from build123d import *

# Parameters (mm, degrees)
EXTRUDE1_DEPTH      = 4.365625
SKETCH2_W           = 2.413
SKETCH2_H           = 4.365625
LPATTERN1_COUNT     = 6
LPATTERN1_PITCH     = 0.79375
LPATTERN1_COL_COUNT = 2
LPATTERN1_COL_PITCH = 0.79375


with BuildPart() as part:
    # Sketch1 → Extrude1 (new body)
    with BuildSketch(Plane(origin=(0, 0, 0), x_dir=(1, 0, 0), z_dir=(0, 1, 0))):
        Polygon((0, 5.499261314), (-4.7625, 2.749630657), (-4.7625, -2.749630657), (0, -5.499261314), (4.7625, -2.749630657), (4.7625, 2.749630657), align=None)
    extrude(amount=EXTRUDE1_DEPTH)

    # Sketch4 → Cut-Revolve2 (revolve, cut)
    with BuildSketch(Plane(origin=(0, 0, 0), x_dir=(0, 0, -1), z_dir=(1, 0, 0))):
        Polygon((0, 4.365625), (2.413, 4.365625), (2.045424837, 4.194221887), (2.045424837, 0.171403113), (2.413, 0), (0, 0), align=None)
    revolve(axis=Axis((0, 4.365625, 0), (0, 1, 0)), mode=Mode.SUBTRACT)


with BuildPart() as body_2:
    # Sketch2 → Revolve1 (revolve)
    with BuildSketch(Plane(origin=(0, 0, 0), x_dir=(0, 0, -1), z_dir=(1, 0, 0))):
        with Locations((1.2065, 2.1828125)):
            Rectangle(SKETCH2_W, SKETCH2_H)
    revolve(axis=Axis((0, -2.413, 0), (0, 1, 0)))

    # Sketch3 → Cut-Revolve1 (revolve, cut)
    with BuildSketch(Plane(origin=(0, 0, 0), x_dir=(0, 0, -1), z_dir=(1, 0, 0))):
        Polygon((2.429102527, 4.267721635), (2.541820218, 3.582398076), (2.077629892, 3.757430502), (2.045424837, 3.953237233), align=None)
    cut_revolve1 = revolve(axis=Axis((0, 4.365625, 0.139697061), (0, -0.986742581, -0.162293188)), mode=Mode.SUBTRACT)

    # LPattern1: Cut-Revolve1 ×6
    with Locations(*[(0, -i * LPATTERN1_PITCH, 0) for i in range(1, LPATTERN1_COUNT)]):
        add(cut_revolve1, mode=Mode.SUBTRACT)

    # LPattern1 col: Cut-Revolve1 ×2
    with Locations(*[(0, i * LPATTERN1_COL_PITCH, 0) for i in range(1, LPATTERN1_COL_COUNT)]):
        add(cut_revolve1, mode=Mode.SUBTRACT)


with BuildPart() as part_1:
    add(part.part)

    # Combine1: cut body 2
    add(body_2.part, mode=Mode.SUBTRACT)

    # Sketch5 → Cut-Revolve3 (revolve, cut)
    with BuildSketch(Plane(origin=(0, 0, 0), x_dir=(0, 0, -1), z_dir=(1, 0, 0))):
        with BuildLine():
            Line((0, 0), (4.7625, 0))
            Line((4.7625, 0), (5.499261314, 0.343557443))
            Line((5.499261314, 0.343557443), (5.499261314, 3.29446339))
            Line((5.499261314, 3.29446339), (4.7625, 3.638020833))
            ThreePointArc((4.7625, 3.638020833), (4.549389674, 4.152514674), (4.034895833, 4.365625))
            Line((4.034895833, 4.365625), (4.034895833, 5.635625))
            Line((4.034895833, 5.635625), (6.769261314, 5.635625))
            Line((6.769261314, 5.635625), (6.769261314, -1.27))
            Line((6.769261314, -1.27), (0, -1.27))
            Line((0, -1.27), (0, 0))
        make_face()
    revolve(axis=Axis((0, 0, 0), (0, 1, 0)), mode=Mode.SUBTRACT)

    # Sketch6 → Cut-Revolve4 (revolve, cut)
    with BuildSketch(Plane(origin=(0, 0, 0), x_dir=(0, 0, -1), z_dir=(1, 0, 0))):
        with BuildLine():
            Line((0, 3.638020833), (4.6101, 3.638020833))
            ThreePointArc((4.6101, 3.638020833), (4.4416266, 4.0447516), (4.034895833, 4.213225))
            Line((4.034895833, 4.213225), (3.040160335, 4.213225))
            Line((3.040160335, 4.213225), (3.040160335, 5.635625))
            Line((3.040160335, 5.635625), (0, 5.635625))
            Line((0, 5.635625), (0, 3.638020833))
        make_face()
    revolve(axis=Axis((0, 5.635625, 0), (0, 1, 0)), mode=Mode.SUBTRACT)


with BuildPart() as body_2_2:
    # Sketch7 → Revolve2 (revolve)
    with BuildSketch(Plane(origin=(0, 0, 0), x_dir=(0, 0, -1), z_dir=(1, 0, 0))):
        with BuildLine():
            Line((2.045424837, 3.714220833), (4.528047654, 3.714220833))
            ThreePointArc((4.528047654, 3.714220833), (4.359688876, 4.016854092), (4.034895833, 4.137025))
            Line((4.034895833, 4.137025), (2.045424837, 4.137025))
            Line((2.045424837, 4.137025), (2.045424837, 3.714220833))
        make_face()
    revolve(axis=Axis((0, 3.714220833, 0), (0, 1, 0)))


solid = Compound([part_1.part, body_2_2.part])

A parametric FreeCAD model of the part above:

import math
import FreeCAD as App
import Part
import Sketcher
from FreeCAD import Vector
Q = App.Units.Quantity


def add_polygon(sketch, points):
    """Adds a closed chain of lines whose ends are joined by coincident constraints."""
    first, n = sketch.GeometryCount, len(points)
    for a, b in zip(points, points[1:] + points[:1]):
        sketch.addGeometry(Part.LineSegment(App.Vector(*a, 0), App.Vector(*b, 0)), False)
    for i in range(n):
        sketch.addConstraint(Sketcher.Constraint("Coincident", first + i, 2, first + (i + 1) % n, 1))

doc = App.newDocument("Part")
params = doc.addObject("Spreadsheet::Sheet", "Params")
for row, (alias, value) in enumerate([
    ("pad1_length", "0.171875 in"),
    ("sketch2_width", "0.171875 in"),
    ("sketch2_height", "0.095 in"),
    ("groove_angle", "360 deg"),
    ("sketch3_width", "0.171875 in"),
    ("sketch3_height", "0.095 in"),
    ("revolution_angle", "360 deg"),
    ("groove2_angle", "360 deg"),
    ("linearpattern_pitch", "0.03125 in"),
    ("linearpattern2_pitch", "0.03125 in"),
    ("sketch5_width", "0.05 in"),
    ("sketch5_height", "0.1875 in"),
    ("groove3_angle", "360 deg"),
    ("sketch6_width", "0.056 in"),
    ("groove4_angle", "360 deg"),
    ("revolution2_angle", "360 deg"),
], start=1):
    params.set(f"A{row}", alias)
    params.set(f"B{row}", "=" + value)
    params.setAlias(f"B{row}", alias)

body = doc.addObject("PartDesign::Body", "Body")

sketch1 = body.newObject("Sketcher::SketchObject", "Sketch")
sketch1.AttachmentSupport = (doc.getObject("XZ_Plane"), [""])
sketch1.MapMode = "FlatFace"
add_polygon(sketch1, [(0, -5), (-5, -3), (-5, 3), (0, 5), (5, 3), (5, -3)])
sketch1.addConstraint([
    Sketcher.Constraint("Vertical", 1),
    Sketcher.Constraint("Vertical", 4),
    Sketcher.Constraint("Symmetric", 0, 2, 3, 2, -1, 1),
    Sketcher.Constraint("Symmetric", 2, 2, 5, 2, -1, 1),
    Sketcher.Constraint("PointOnObject", 2, 2, -2),
    Sketcher.Constraint("Parallel", 2, 5),
    Sketcher.Constraint("Horizontal", 1, 2, 3, 2),
    Sketcher.Constraint("Angle", 0, Q("150 deg")),
    Sketcher.Constraint("DistanceX", 0, 2, -1, 1, Q("0.1875 in")),
    Sketcher.Constraint("DistanceY", 1, 1, 1, 2, Q("5.499261 mm")),
])
pad1 = body.newObject("PartDesign::Pad", "Pad")
pad1.Profile = sketch1
pad1.setExpression("Length", "Params.pad1_length")
pad1.Reversed = True

sketch2 = body.newObject("Sketcher::SketchObject", "Sketch001")
sketch2.AttachmentSupport = (doc.getObject("YZ_Plane"), [""])
sketch2.MapMode = "FlatFace"
add_polygon(sketch2, [(4.37, -2.41), (4.37, 0), (0, 0), (0, -2.41), (0.17, -2.05), (4.19, -2.05)])
sketch2.addConstraint([
    Sketcher.Constraint("Vertical", 0),
    Sketcher.Constraint("Horizontal", 1),
    Sketcher.Constraint("Vertical", 2),
    Sketcher.Constraint("Horizontal", 4),
    Sketcher.Constraint("Coincident", 1, 2, -1, 1),
    Sketcher.Constraint("Horizontal", 2, 2, 5, 2),
    Sketcher.Constraint("Equal", 3, 5),
    Sketcher.Constraint("Angle", 3, Q("65 deg")),
    Sketcher.Constraint("DistanceX", 1, 2, 1, 1, Q("0.171875 in")),
    Sketcher.Constraint("DistanceY", 0, 1, 0, 2, Q("0.095 in")),
    Sketcher.Constraint("DistanceX", 4, 1, 4, 2, Q("4.022819 mm")),
])
sketch2.setExpression("Constraints[14]", "Params.sketch2_width")
sketch2.setExpression("Constraints[15]", "Params.sketch2_height")
groove = body.newObject("PartDesign::Groove", "Groove")
groove.Profile = sketch2
groove.ReferenceAxis = (sketch2, ["H_Axis"])
groove.setExpression("Angle", "Params.groove_angle")
body2 = doc.addObject("PartDesign::Body", "Body001")

sketch3 = body2.newObject("Sketcher::SketchObject", "Sketch002")
sketch3.AttachmentSupport = (doc.getObject("YZ_Plane001"), [""])
sketch3.MapMode = "FlatFace"
add_polygon(sketch3, [(4.4, 0), (0, 0), (0, -2.4), (4.4, -2.4)])
sketch3.addConstraint([
    Sketcher.Constraint("Horizontal", 0),
    Sketcher.Constraint("Vertical", 1),
    Sketcher.Constraint("Horizontal", 2),
    Sketcher.Constraint("Vertical", 3),
    Sketcher.Constraint("Coincident", 0, 2, -1, 1),
    Sketcher.Constraint("DistanceX", 0, 2, 0, 1, Q("0.171875 in")),
    Sketcher.Constraint("DistanceY", 1, 2, 1, 1, Q("0.095 in")),
])
sketch3.setExpression("Constraints[9]", "Params.sketch3_width")
sketch3.setExpression("Constraints[10]", "Params.sketch3_height")
revolution = body2.newObject("PartDesign::Revolution", "Revolution")
revolution.Profile = sketch3
revolution.ReferenceAxis = (sketch3, ["H_Axis"])
revolution.setExpression("Angle", "Params.revolution_angle")

sketch4 = body2.newObject("Sketcher::SketchObject", "Sketch003")
sketch4.AttachmentSupport = (doc.getObject("YZ_Plane001"), [""])
sketch4.MapMode = "FlatFace"
add_polygon(sketch4, [(3.58, -2.54), (4.27, -2.43), (3.95, -2.05), (3.76, -2.08)])
sketch4.addGeometry(Part.LineSegment(Vector(3.86, 0.06, 0), Vector(3.17, -0.06, 0)), True)
sketch4.addConstraint([
    Sketcher.Constraint("Parallel", 0, 2),
    Sketcher.Constraint("Parallel", 2, 4),
    Sketcher.Constraint("Equal", 1, 3),
    Sketcher.Constraint("Equal", 0, 4),
    Sketcher.Constraint("DistanceX", 3, 2, 1, 2, Q("0.0146 in")),
    Sketcher.Constraint("DistanceX", -1, 1, 3, 2, Q("3.582398 mm")),
    Sketcher.Constraint("DistanceX", 2, 2, 4, 1, Q("0.101498 mm")),
    Sketcher.Constraint("Distance", 0, Q("0.694531 mm")),
    Sketcher.Constraint("DistanceX", -1, 1, 0, 2, Q("4.267722 mm")),
    Sketcher.Constraint("DistanceX", -1, 1, 2, 2, Q("3.757431 mm")),
    Sketcher.Constraint("DistanceY", 2, 2, -1, 1, Q("2.07763 mm")),
    Sketcher.Constraint("DistanceY", -1, 1, 4, 1, Q("0.056359 mm")),
])
groove2 = body2.newObject("PartDesign::Groove", "Groove001")
groove2.Profile = sketch4
groove2.ReferenceAxis = (sketch4, ["Axis0"])
groove2.setExpression("Angle", "Params.groove2_angle")
doc.recompute()

linearpattern = body2.newObject("PartDesign::LinearPattern", "LinearPattern")
linearpattern.Originals = [groove2]
linearpattern.Direction = (doc.getObject("Y_Axis001"), [""])
linearpattern.Mode = "offset"
linearpattern.setExpression("Offset", "Params.linearpattern_pitch")
linearpattern.Occurrences = 6
linearpattern.Reversed = True
body2.Tip = linearpattern
doc.recompute()

linearpattern2 = body2.newObject("PartDesign::LinearPattern", "LinearPattern001")
linearpattern2.Originals = [groove2]
linearpattern2.Direction = (doc.getObject("Y_Axis001"), [""])
linearpattern2.Mode = "offset"
linearpattern2.setExpression("Offset", "Params.linearpattern2_pitch")
linearpattern2.Occurrences = 2
body2.Tip = linearpattern2
doc.recompute()

boolean = body.newObject("PartDesign::Boolean", "Boolean")
boolean.Type = "Cut"
boolean.addObjects([body2])

sketch5 = body.newObject("Sketcher::SketchObject", "Sketch004")
sketch5.AttachmentSupport = (doc.getObject("YZ_Plane"), [""])
sketch5.MapMode = "FlatFace"
sketch5.addGeometry([
    Part.LineSegment(Vector(0, -4.8, 0), Vector(0, 0, 0)),
    Part.LineSegment(Vector(0, 0, 0), Vector(-1.3, 0, 0)),
    Part.LineSegment(Vector(-1.3, 0, 0), Vector(-1.3, -6.8, 0)),
    Part.LineSegment(Vector(-1.3, -6.8, 0), Vector(5.6, -6.8, 0)),
    Part.LineSegment(Vector(5.6, -6.8, 0), Vector(5.6, -4, 0)),
    Part.LineSegment(Vector(5.6, -4, 0), Vector(4.4, -4, 0)),
    Part.ArcOfCircle(Part.Circle(Vector(3.6, -4, 0), Vector(0, 0, 1), 0.7), math.radians(-90), math.radians(0)),
    Part.LineSegment(Vector(3.6, -4.8, 0), Vector(3.3, -5.5, 0)),
    Part.LineSegment(Vector(3.3, -5.5, 0), Vector(0.3, -5.5, 0)),
    Part.LineSegment(Vector(0.3, -5.5, 0), Vector(0, -4.8, 0)),
], False)
sketch5.addConstraint([
    Sketcher.Constraint("Coincident", 0, 2, 1, 1),
    Sketcher.Constraint("Coincident", 1, 2, 2, 1),
    Sketcher.Constraint("Coincident", 2, 2, 3, 1),
    Sketcher.Constraint("Coincident", 3, 2, 4, 1),
    Sketcher.Constraint("Coincident", 4, 2, 5, 1),
    Sketcher.Constraint("Coincident", 5, 2, 6, 2),
    Sketcher.Constraint("Coincident", 6, 1, 7, 1),
    Sketcher.Constraint("Coincident", 7, 2, 8, 1),
    Sketcher.Constraint("Coincident", 8, 2, 9, 1),
    Sketcher.Constraint("Coincident", 9, 2, 0, 1),
    Sketcher.Constraint("Vertical", 0),
    Sketcher.Constraint("Horizontal", 1),
    Sketcher.Constraint("Vertical", 2),
    Sketcher.Constraint("Horizontal", 3),
    Sketcher.Constraint("Vertical", 4),
    Sketcher.Constraint("Horizontal", 5),
    Sketcher.Constraint("Horizontal", 8),
    Sketcher.Constraint("Coincident", 0, 2, -1, 1),
    Sketcher.Constraint("Horizontal", 6, 3, 4, 2),
    Sketcher.Constraint("Horizontal", 6, 1, 9, 2),
    Sketcher.Constraint("Equal", 1, 5),
    Sketcher.Constraint("Equal", 7, 9),
    Sketcher.Constraint("Angle", 7, Q("-115 deg")),
    Sketcher.Constraint("DistanceX", 1, 2, 1, 1, Q("0.05 in")),
    Sketcher.Constraint("DistanceY", 0, 1, 0, 2, Q("0.1875 in")),
    Sketcher.Constraint("DistanceY", 3, 2, 7, 2, Q("0.05 in")),
    Sketcher.Constraint("DistanceX", -1, 1, 5, 2, Q("0.171875 in")),
    Sketcher.Constraint("Radius", 6, Q("0.727604 mm")),
    Sketcher.Constraint("DistanceY", 2, 2, 2, 1, Q("6.769261 mm")),
    Sketcher.Constraint("DistanceX", 8, 2, 8, 1, Q("2.950906 mm")),
])
sketch5.setExpression("Constraints[23]", "Params.sketch5_width")
sketch5.setExpression("Constraints[24]", "Params.sketch5_height")
groove3 = body.newObject("PartDesign::Groove", "Groove002")
groove3.Profile = sketch5
groove3.ReferenceAxis = (sketch5, ["H_Axis"])
groove3.setExpression("Angle", "Params.groove3_angle")

sketch6 = body.newObject("Sketcher::SketchObject", "Sketch005")
sketch6.AttachmentSupport = (doc.getObject("YZ_Plane"), [""])
sketch6.MapMode = "FlatFace"
sketch6.addGeometry([
    Part.LineSegment(Vector(3.6, 0, 0), Vector(3.6, -4.6, 0)),
    Part.ArcOfCircle(Part.Circle(Vector(3.6, -4, 0), Vector(0, 0, 1), 0.6), math.radians(-90), math.radians(0)),
    Part.LineSegment(Vector(4.2, -4, 0), Vector(4.2, -3, 0)),
    Part.LineSegment(Vector(4.2, -3, 0), Vector(5.6, -3, 0)),
    Part.LineSegment(Vector(5.6, -3, 0), Vector(5.6, 0, 0)),
    Part.LineSegment(Vector(5.6, 0, 0), Vector(3.6, 0, 0)),
], False)
sketch6.addConstraint([
    Sketcher.Constraint("Coincident", 0, 2, 1, 1),
    Sketcher.Constraint("Tangent", 1, 2, 2, 1),
    Sketcher.Constraint("Coincident", 2, 2, 3, 1),
    Sketcher.Constraint("Coincident", 3, 2, 4, 1),
    Sketcher.Constraint("Coincident", 4, 2, 5, 1),
    Sketcher.Constraint("Coincident", 5, 2, 0, 1),
    Sketcher.Constraint("Vertical", 0),
    Sketcher.Constraint("Vertical", 2),
    Sketcher.Constraint("Horizontal", 3),
    Sketcher.Constraint("Vertical", 4),
    Sketcher.Constraint("Horizontal", 5),
    Sketcher.Constraint("PointOnObject", 4, 2, -1),
    Sketcher.Constraint("Vertical", 1, 3, 0, 2),
    Sketcher.Constraint("DistanceX", 3, 1, 3, 2, Q("0.056 in")),
    Sketcher.Constraint("DistanceY", 0, 2, 0, 1, Q("0.1815 in")),
    Sketcher.Constraint("Radius", 1, Q("0.575204 mm")),
    Sketcher.Constraint("DistanceY", 4, 1, 4, 2, Q("3.04016 mm")),
    Sketcher.Constraint("DistanceX", -1, 1, 1, 3, Q("3.638021 mm")),
])
sketch6.setExpression("Constraints[13]", "Params.sketch6_width")
groove4 = body.newObject("PartDesign::Groove", "Groove003")
groove4.Profile = sketch6
groove4.ReferenceAxis = (sketch6, ["H_Axis"])
groove4.setExpression("Angle", "Params.groove4_angle")
body3 = doc.addObject("PartDesign::Body", "Body002")

sketch7 = body3.newObject("Sketcher::SketchObject", "Sketch006")
sketch7.AttachmentSupport = (doc.getObject("YZ_Plane002"), [""])
sketch7.MapMode = "FlatFace"
sketch7.addGeometry([
    Part.LineSegment(Vector(3.71, -2.05, 0), Vector(3.71, -4.53, 0)),
    Part.ArcOfCircle(Part.Circle(Vector(3.64, -4.03, 0), Vector(0, 0, 1), 0.5), math.radians(-81), math.radians(0)),
    Part.LineSegment(Vector(4.14, -4.03, 0), Vector(4.14, -2.05, 0)),
    Part.LineSegment(Vector(4.14, -2.05, 0), Vector(3.71, -2.05, 0)),
], False)
sketch7.addConstraint([
    Sketcher.Constraint("Coincident", 0, 2, 1, 1),
    Sketcher.Constraint("Tangent", 1, 2, 2, 1),
    Sketcher.Constraint("Coincident", 2, 2, 3, 1),
    Sketcher.Constraint("Coincident", 3, 2, 0, 1),
    Sketcher.Constraint("Vertical", 0),
    Sketcher.Constraint("Vertical", 2),
    Sketcher.Constraint("Horizontal", 3),
    Sketcher.Constraint("DistanceX", 1, 3, 0, 2, Q("0.003 in")),
    Sketcher.Constraint("Radius", 1, Q("0.499004 mm")),
    Sketcher.Constraint("DistanceY", 2, 1, 2, 2, Q("1.989471 mm")),
    Sketcher.Constraint("DistanceX", -1, 1, 1, 3, Q("3.638021 mm")),
    Sketcher.Constraint("DistanceY", 1, 3, -1, 1, Q("4.034896 mm")),
])
revolution2 = body3.newObject("PartDesign::Revolution", "Revolution001")
revolution2.Profile = sketch7
revolution2.ReferenceAxis = (sketch7, ["H_Axis"])
revolution2.setExpression("Angle", "Params.revolution2_angle")

doc.recompute()
